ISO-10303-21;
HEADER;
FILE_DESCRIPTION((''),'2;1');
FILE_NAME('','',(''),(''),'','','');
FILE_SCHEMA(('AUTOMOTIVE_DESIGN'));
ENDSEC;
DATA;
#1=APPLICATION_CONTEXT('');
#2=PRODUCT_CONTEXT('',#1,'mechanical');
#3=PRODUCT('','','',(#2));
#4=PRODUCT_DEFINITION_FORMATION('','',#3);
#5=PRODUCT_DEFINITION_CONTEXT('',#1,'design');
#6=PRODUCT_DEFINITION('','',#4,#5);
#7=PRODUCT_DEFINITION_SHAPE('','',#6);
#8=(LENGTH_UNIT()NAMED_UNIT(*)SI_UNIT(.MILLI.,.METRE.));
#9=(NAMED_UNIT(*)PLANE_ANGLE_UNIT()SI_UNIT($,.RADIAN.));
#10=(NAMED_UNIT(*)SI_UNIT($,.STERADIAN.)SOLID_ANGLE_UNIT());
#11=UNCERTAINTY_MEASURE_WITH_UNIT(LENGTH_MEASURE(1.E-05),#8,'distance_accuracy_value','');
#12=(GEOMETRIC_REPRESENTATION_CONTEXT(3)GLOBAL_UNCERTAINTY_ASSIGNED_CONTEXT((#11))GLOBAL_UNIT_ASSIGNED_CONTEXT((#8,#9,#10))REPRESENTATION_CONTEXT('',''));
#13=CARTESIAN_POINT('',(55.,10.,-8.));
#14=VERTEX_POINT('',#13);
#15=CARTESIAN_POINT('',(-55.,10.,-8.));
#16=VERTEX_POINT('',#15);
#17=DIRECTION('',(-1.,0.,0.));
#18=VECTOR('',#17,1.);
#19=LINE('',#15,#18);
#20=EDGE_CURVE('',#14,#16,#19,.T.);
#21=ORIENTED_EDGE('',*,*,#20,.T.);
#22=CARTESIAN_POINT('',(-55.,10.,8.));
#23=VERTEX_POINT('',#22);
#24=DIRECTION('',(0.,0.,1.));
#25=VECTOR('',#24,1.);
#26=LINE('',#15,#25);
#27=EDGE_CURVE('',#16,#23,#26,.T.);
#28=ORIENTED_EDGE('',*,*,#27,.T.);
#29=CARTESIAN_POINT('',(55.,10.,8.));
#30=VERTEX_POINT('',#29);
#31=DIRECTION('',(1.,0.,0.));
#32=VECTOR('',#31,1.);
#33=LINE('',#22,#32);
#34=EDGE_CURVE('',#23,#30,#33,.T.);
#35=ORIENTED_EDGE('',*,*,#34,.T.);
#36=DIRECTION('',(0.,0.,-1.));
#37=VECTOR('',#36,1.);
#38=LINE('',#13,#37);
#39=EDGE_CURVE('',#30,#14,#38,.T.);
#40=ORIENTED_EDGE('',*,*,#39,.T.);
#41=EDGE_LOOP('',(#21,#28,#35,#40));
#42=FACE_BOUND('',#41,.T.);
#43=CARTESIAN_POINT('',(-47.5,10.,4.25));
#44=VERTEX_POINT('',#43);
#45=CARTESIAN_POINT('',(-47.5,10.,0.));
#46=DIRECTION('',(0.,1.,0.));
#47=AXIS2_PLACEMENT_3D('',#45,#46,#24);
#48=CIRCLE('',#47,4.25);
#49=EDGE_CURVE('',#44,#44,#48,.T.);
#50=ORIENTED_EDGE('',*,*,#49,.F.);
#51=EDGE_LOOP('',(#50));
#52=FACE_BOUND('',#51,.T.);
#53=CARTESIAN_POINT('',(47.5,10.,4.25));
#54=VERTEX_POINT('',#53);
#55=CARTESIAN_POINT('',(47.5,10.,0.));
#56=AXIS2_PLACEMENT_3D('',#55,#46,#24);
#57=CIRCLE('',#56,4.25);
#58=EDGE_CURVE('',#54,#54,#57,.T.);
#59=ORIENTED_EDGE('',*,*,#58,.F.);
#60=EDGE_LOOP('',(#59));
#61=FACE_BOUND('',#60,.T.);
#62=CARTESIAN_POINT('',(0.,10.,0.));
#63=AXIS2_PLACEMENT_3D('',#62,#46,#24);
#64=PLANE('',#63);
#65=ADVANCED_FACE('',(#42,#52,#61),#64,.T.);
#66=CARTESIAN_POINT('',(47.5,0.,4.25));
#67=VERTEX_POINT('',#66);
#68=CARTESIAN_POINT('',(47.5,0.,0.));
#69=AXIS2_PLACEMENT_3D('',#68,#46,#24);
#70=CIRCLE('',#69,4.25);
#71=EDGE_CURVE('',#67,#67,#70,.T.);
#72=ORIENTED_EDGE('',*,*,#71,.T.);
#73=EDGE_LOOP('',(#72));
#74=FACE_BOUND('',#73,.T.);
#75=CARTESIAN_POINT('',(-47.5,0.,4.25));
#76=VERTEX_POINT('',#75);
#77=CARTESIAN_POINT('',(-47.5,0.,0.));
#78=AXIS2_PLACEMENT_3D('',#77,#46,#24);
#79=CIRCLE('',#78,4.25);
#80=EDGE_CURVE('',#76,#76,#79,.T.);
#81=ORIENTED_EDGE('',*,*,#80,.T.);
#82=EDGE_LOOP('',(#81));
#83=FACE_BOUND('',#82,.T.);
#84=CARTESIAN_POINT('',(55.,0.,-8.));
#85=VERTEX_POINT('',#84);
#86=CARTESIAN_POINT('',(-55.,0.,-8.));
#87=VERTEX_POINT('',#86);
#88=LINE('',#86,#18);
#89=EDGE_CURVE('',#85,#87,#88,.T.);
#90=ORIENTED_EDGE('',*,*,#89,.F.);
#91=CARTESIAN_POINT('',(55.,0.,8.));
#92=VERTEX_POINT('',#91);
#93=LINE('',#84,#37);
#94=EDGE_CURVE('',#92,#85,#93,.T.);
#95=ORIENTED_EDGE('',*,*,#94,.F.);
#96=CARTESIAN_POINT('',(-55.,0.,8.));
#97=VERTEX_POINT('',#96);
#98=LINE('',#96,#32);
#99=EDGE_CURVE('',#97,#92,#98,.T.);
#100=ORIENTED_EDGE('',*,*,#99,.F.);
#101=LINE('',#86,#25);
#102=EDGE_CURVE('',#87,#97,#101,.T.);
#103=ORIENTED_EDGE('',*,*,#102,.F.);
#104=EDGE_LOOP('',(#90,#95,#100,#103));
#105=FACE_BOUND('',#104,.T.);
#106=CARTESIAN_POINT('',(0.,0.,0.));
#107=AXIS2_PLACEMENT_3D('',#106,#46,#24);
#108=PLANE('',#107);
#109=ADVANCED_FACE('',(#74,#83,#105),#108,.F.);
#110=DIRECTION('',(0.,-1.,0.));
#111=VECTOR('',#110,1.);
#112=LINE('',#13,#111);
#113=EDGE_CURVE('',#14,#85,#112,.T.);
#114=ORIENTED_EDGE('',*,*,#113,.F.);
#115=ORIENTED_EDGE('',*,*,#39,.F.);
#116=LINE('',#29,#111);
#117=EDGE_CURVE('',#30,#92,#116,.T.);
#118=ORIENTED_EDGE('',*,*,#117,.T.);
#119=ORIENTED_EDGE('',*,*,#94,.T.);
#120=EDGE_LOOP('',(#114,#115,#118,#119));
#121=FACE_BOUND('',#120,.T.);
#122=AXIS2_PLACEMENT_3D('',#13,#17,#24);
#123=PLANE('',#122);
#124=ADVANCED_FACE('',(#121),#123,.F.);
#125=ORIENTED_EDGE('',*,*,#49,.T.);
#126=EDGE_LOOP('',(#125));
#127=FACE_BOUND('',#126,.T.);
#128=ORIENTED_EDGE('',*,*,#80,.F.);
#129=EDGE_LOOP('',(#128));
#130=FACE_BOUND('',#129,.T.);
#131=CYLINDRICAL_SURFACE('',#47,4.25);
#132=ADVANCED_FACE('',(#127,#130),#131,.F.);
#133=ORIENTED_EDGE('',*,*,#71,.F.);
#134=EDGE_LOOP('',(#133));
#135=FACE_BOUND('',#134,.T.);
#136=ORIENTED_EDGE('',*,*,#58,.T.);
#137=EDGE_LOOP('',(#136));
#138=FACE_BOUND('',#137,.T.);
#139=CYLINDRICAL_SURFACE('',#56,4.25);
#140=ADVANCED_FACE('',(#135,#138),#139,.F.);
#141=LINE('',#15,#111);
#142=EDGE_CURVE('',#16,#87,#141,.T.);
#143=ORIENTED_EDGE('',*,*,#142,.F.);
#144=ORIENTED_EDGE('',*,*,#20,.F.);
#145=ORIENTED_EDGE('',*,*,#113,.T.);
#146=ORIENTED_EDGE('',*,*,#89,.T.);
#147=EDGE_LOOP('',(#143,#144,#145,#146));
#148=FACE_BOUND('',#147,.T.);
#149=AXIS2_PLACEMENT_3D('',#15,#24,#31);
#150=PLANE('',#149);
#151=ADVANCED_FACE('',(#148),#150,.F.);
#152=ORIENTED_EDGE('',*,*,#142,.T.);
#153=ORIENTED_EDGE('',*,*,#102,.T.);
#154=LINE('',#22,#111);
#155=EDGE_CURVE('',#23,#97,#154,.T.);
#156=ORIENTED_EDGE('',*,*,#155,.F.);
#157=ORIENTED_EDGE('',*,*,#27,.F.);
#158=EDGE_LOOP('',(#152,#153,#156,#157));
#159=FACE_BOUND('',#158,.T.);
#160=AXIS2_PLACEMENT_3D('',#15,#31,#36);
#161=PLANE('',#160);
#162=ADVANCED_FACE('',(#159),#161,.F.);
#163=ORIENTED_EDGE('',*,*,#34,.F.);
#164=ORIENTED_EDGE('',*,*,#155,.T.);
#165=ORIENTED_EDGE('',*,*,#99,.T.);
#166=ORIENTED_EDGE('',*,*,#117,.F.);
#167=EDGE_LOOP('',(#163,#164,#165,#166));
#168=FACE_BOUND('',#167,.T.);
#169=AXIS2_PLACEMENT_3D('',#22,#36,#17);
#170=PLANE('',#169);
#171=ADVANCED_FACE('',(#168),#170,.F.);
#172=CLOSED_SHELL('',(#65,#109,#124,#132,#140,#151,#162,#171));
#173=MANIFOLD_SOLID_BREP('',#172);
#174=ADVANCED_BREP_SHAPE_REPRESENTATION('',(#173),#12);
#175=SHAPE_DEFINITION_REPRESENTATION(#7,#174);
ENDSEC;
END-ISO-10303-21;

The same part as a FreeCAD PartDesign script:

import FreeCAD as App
import Part
import Sketcher

V = App.Vector
Q = App.Units.Quantity


def add_polygon(sketch, points):
    """Adds a closed chain of lines whose ends are joined by coincident constraints."""
    first, n = sketch.GeometryCount, len(points)
    for a, b in zip(points, points[1:] + points[:1]):
        sketch.addGeometry(Part.LineSegment(App.Vector(*a, 0), App.Vector(*b, 0)), False)
    for i in range(n):
        sketch.addConstraint(Sketcher.Constraint("Coincident", first + i, 2, first + (i + 1) % n, 1))

doc = App.newDocument("Part")
body = doc.addObject("PartDesign::Body", "Body")

# Sketch on XZ plane
sketch1 = body.newObject("Sketcher::SketchObject", "Sketch")
sketch1.AttachmentSupport = (doc.getObject("XZ_Plane"), [""])
sketch1.MapMode = "FlatFace"
add_polygon(sketch1, [(-55, -8), (-55, 8), (55, 8), (55, -8)])  # lines 0-3
sketch1.addConstraint(Sketcher.Constraint("Vertical", 0))
sketch1.addConstraint(Sketcher.Constraint("Horizontal", 1))
sketch1.addConstraint(Sketcher.Constraint("Vertical", 2))
sketch1.addConstraint(Sketcher.Constraint("Horizontal", 3))
sketch1.addConstraint(Sketcher.Constraint("Symmetric", 0, 2, 2, 2, -1, 1))
sketch1.addConstraint(Sketcher.Constraint("DistanceX", 1, 1, 1, 2, Q("110 mm")))
sketch1.addConstraint(Sketcher.Constraint("DistanceY", 0, 1, 0, 2, Q("16 mm")))
pad1 = body.newObject("PartDesign::Pad", "Pad")
pad1.Profile = sketch1
pad1.Length = 10
pad1.Reversed = True

# Sketch on XZ plane
sketch2 = body.newObject("Sketcher::SketchObject", "Sketch001")
sketch2.AttachmentSupport = (doc.getObject("XZ_Plane"), [""])
sketch2.MapMode = "FlatFace"
sketch2.AttachmentOffset = App.Placement(V(0, 0, -10), App.Rotation())
sketch2.addGeometry(Part.Circle(V(-47.5, 0, 0), V(0, 0, 1), 4.2), False)
sketch2.addGeometry(Part.Circle(V(47.5, 0, 0), V(0, 0, 1), 4.2), False)
sketch2.addConstraint(Sketcher.Constraint("Equal", 0, 1))
sketch2.addConstraint(Sketcher.Constraint("Symmetric", 0, 3, 1, 3, -1, 1))
sketch2.addConstraint(Sketcher.Constraint("PointOnObject", 0, 3, -1))
sketch2.addConstraint(Sketcher.Constraint("Diameter", 0, Q("8.5 mm")))
sketch2.addConstraint(Sketcher.Constraint("DistanceX", 0, 3, 1, 3, Q("95 mm")))
doc.recompute()
hole = body.newObject("PartDesign::Hole", "Hole")
hole.Profile = sketch2
hole.ThreadType = "None"
hole.Diameter = 8.5
hole.DepthType = "Dimension"
hole.Depth = 24.5
hole.DrillPoint = "Angled"
hole.DrillPointAngle = 118
hole.Reversed = True

doc.recompute()
